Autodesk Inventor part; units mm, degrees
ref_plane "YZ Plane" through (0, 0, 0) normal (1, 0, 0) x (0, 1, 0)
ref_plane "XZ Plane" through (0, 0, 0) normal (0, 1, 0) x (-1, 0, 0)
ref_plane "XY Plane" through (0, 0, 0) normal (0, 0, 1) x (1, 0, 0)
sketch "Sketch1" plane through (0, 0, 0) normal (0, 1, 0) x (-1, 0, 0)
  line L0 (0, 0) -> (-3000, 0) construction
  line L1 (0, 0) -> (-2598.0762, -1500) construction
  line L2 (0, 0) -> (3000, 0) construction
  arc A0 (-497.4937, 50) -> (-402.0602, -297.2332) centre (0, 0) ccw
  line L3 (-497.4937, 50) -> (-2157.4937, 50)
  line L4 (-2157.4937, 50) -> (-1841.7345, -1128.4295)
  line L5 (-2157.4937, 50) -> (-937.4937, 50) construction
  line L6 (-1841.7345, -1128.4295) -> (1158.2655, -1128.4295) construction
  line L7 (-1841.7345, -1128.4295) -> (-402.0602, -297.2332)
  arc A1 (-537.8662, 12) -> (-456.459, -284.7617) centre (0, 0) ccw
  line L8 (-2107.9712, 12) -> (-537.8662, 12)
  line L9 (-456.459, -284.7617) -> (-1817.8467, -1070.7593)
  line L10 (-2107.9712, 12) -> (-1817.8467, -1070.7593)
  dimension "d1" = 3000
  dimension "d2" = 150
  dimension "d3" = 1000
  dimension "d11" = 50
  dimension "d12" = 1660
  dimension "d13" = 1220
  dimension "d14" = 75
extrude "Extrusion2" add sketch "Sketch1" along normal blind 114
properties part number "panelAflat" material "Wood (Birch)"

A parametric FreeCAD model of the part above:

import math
import FreeCAD as App
import Part
import Sketcher
from FreeCAD import Vector
Q = App.Units.Quantity

doc = App.newDocument("Part")
body = doc.addObject("PartDesign::Body", "Body")

sketch1 = body.newObject("Sketcher::SketchObject", "Sketch")
sketch1.AttachmentSupport = (doc.getObject("XZ_Plane"), [""])
sketch1.MapMode = "FlatFace"
sketch1.addGeometry([
    Part.ArcOfCircle(Part.Circle(Vector(0, 0, 0), Vector(0, 0, 1), 499.999982), math.radians(-36.474604), math.radians(5.739171)),
    Part.LineSegment(Vector(497.4937, 50, 0), Vector(2157.4937, 50, 0)),
    Part.LineSegment(Vector(2157.4937, 50, 0), Vector(1841.7345, -1128.4295, 0)),
    Part.LineSegment(Vector(1841.7345, -1128.4295, 0), Vector(402.0602, -297.2332, 0)),
    Part.LineSegment(Vector(2107.9712, 12, 0), Vector(537.8662, 12, 0)),
    Part.ArcOfCircle(Part.Circle(Vector(0, 0, 0), Vector(0, 0, 1), 538.000046), math.radians(-31.957955), math.radians(1.278079)),
    Part.LineSegment(Vector(456.459, -284.7617, 0), Vector(1817.8467, -1070.7593, 0)),
    Part.LineSegment(Vector(1817.8467, -1070.7593, 0), Vector(2107.9712, 12, 0)),
], False)
sketch1.addConstraint([
    Sketcher.Constraint("Coincident", 0, 2, 1, 1),
    Sketcher.Constraint("Coincident", 1, 2, 2, 1),
    Sketcher.Constraint("Coincident", 2, 2, 3, 1),
    Sketcher.Constraint("Coincident", 3, 2, 0, 1),
    Sketcher.Constraint("Coincident", 4, 2, 5, 2),
    Sketcher.Constraint("Coincident", 5, 1, 6, 1),
    Sketcher.Constraint("Coincident", 6, 2, 7, 1),
    Sketcher.Constraint("Coincident", 7, 2, 4, 1),
    Sketcher.Constraint("Horizontal", 1),
    Sketcher.Constraint("Horizontal", 4),
    Sketcher.Constraint("Coincident", 0, 3, -1, 1),
    Sketcher.Constraint("Coincident", 5, 3, -1, 1),
    Sketcher.Constraint("Parallel", 3, 6),
    Sketcher.Constraint("Parallel", 2, 7),
    Sketcher.Constraint("Radius", 0, 500.0),
    Sketcher.Constraint("DistanceX", 1, 1, 1, 2, 1660.0),
    Sketcher.Constraint("Angle", 3, Q("150 deg")),
    Sketcher.Constraint("Angle", 7, Q("75 deg")),
    Sketcher.Constraint("Distance", 2, 1220.0),
    Sketcher.Constraint("DistanceY", -1, 1, 1, 2, 50.0),
    Sketcher.Constraint("Radius", 5, 538.0),
    Sketcher.Constraint("DistanceY", -1, 1, 4, 2, 12.0),
    Sketcher.Constraint("DistanceX", 4, 2, 4, 1, 1570.105),
    Sketcher.Constraint("Distance", 7, 1120.955),
])
pad1 = body.newObject("PartDesign::Pad", "Pad")
pad1.Profile = sketch1
pad1.Length = 114
pad1.Reversed = True

doc.recompute()
